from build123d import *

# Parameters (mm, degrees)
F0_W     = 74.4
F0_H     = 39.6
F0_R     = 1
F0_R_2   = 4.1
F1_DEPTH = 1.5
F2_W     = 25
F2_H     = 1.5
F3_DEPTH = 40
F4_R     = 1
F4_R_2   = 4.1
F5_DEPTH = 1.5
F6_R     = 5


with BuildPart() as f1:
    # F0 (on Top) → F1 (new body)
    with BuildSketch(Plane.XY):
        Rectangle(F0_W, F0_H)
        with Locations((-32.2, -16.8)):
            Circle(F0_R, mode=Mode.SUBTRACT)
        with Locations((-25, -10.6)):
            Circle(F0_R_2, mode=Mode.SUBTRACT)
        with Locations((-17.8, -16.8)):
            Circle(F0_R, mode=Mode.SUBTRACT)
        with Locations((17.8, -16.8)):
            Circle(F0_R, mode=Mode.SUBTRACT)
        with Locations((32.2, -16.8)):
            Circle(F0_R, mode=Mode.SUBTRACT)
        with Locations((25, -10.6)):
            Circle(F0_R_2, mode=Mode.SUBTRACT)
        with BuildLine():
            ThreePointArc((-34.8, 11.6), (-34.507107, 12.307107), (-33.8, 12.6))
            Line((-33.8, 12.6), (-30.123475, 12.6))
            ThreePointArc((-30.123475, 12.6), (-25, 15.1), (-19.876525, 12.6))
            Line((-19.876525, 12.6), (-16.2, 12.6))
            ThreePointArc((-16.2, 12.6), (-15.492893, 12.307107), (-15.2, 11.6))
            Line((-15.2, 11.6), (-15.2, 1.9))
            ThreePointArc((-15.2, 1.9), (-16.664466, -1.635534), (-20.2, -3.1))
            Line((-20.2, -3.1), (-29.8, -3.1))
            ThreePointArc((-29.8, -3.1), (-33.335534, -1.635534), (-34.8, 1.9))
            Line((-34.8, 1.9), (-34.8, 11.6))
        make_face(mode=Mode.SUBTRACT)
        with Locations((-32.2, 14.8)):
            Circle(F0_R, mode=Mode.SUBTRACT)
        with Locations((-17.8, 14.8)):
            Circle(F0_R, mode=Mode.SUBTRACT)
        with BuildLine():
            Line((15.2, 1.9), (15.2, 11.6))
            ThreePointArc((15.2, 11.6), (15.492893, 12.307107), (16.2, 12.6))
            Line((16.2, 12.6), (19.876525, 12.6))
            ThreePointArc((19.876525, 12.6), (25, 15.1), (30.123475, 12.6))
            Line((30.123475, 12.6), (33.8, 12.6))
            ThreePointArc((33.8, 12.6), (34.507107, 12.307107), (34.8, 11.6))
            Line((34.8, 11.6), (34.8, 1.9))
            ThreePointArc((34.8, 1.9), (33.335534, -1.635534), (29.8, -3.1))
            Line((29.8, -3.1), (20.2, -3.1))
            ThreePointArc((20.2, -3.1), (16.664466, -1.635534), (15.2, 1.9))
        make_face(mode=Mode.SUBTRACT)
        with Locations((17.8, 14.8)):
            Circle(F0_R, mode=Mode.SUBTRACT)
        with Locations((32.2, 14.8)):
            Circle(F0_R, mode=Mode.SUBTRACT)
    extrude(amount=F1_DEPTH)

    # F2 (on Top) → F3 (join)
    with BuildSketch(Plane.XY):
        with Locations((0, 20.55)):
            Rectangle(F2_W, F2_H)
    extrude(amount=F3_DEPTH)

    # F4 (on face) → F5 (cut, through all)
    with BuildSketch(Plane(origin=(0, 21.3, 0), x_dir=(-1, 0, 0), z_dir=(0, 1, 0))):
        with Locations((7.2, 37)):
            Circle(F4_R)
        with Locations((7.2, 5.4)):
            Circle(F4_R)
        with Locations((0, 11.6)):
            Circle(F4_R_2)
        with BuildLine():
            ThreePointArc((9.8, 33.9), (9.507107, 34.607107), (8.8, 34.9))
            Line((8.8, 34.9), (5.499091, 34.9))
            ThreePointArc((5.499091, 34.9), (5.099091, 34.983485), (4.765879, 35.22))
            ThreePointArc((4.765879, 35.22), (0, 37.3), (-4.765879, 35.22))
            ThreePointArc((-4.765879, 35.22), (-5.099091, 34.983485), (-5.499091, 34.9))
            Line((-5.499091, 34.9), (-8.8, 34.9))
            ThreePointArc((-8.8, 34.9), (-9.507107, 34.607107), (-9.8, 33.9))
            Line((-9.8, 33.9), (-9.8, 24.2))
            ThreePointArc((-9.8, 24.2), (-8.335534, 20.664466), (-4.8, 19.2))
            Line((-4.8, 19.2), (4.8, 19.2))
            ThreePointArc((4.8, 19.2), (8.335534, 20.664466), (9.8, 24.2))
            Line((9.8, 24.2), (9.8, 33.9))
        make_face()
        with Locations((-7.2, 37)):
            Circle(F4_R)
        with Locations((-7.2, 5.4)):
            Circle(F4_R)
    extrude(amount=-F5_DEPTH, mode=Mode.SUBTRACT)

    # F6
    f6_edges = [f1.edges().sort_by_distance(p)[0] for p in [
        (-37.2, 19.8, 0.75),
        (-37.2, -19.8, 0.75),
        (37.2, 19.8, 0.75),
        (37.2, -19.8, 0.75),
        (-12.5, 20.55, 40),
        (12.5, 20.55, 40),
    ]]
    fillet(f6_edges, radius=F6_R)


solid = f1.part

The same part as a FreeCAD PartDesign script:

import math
import FreeCAD as App
import Part
import Sketcher

V = App.Vector
Q = App.Units.Quantity


def edges_at(feature, points):
    """Names of the edges that pass closest to the given points."""
    edges = feature.Shape.Edges
    near = lambda p: min(range(len(edges)), key=lambda i: edges[i].distToShape(Part.Vertex(*p))[0])
    return sorted({f"Edge{near(p) + 1}" for p in points})


def add_polygon(sketch, points):
    """Adds a closed chain of lines whose ends are joined by coincident constraints."""
    first, n = sketch.GeometryCount, len(points)
    for a, b in zip(points, points[1:] + points[:1]):
        sketch.addGeometry(Part.LineSegment(App.Vector(*a, 0), App.Vector(*b, 0)), False)
    for i in range(n):
        sketch.addConstraint(Sketcher.Constraint("Coincident", first + i, 2, first + (i + 1) % n, 1))

doc = App.newDocument("Part")
body = doc.addObject("PartDesign::Body", "Body")

# Sketch on XY plane
sketch1 = body.newObject("Sketcher::SketchObject", "Sketch")
sketch1.AttachmentSupport = (doc.getObject("XY_Plane"), [""])
sketch1.MapMode = "FlatFace"
add_polygon(sketch1, [(-37.2, 19.8), (-37.2, -19.8), (37.2, -19.8), (37.2, 19.8)])  # lines 0-3
sketch1.addGeometry(Part.Circle(V(-32.2, -16.8, 0), V(0, 0, 1), 1), False)  # 4
sketch1.addGeometry(Part.Circle(V(-17.8, -16.8, 0), V(0, 0, 1), 1), False)  # 5
sketch1.addGeometry(Part.Circle(V(-25, -10.6, 0), V(0, 0, 1), 4.1), False)  # 6
sketch1.addGeometry(Part.Circle(V(17.8, -16.8, 0), V(0, 0, 1), 1), False)  # 7
sketch1.addGeometry(Part.Circle(V(32.2, -16.8, 0), V(0, 0, 1), 1), False)  # 8
sketch1.addGeometry(Part.Circle(V(25, -10.6, 0), V(0, 0, 1), 4.1), False)  # 9
sketch1.addGeometry(Part.LineSegment(V(-34.8, 1.9, 0), V(-34.8, 11.6, 0)), False)  # 10
sketch1.addGeometry(Part.ArcOfCircle(Part.Circle(V(-33.8, 11.6, 0), V(0, 0, 1), 1), math.radians(90), math.radians(180)), False)  # 11
sketch1.addGeometry(Part.LineSegment(V(-33.8, 12.6, 0), V(-30.1, 12.6, 0)), False)  # 12
sketch1.addGeometry(Part.ArcOfCircle(Part.Circle(V(-25, 8.6, 0), V(0, 0, 1), 6.5), math.radians(38), math.radians(142)), False)  # 13
sketch1.addGeometry(Part.LineSegment(V(-19.9, 12.6, 0), V(-16.2, 12.6, 0)), False)  # 14
sketch1.addGeometry(Part.ArcOfCircle(Part.Circle(V(-16.2, 11.6, 0), V(0, 0, 1), 1), math.radians(0), math.radians(90)), False)  # 15
sketch1.addGeometry(Part.LineSegment(V(-15.2, 11.6, 0), V(-15.2, 1.9, 0)), False)  # 16
sketch1.addGeometry(Part.ArcOfCircle(Part.Circle(V(-20.2, 1.9, 0), V(0, 0, 1), 5), math.radians(-90), math.radians(0)), False)  # 17
sketch1.addGeometry(Part.LineSegment(V(-20.2, -3.1, 0), V(-29.8, -3.1, 0)), False)  # 18
sketch1.addGeometry(Part.ArcOfCircle(Part.Circle(V(-29.8, 1.9, 0), V(0, 0, 1), 5), math.radians(180), math.radians(270)), False)  # 19
sketch1.addGeometry(Part.Circle(V(-32.2, 14.8, 0), V(0, 0, 1), 1), False)  # 20
sketch1.addGeometry(Part.Circle(V(-17.8, 14.8, 0), V(0, 0, 1), 1), False)  # 21
sketch1.addGeometry(Part.ArcOfCircle(Part.Circle(V(20.2, 1.9, 0), V(0, 0, 1), 5), math.radians(180), math.radians(270)), False)  # 22
sketch1.addGeometry(Part.LineSegment(V(15.2, 1.9, 0), V(15.2, 11.6, 0)), False)  # 23
sketch1.addGeometry(Part.ArcOfCircle(Part.Circle(V(16.2, 11.6, 0), V(0, 0, 1), 1), math.radians(90), math.radians(180)), False)  # 24
sketch1.addGeometry(Part.LineSegment(V(16.2, 12.6, 0), V(19.9, 12.6, 0)), False)  # 25
sketch1.addGeometry(Part.ArcOfCircle(Part.Circle(V(25, 8.6, 0), V(0, 0, 1), 6.5), math.radians(38), math.radians(142)), False)  # 26
sketch1.addGeometry(Part.LineSegment(V(30.1, 12.6, 0), V(33.8, 12.6, 0)), False)  # 27
sketch1.addGeometry(Part.ArcOfCircle(Part.Circle(V(33.8, 11.6, 0), V(0, 0, 1), 1), math.radians(0), math.radians(90)), False)  # 28
sketch1.addGeometry(Part.LineSegment(V(34.8, 11.6, 0), V(34.8, 1.9, 0)), False)  # 29
sketch1.addGeometry(Part.ArcOfCircle(Part.Circle(V(29.8, 1.9, 0), V(0, 0, 1), 5), math.radians(-90), math.radians(0)), False)  # 30
sketch1.addGeometry(Part.LineSegment(V(29.8, -3.1, 0), V(20.2, -3.1, 0)), False)  # 31
sketch1.addGeometry(Part.Circle(V(17.8, 14.8, 0), V(0, 0, 1), 1), False)  # 32
sketch1.addGeometry(Part.Circle(V(32.2, 14.8, 0), V(0, 0, 1), 1), False)  # 33
sketch1.addConstraint(Sketcher.Constraint("Tangent", 10, 2, 11, 2))
sketch1.addConstraint(Sketcher.Constraint("Tangent", 11, 1, 12, 1))
sketch1.addConstraint(Sketcher.Constraint("Coincident", 12, 2, 13, 2))
sketch1.addConstraint(Sketcher.Constraint("Coincident", 13, 1, 14, 1))
sketch1.addConstraint(Sketcher.Constraint("Tangent", 14, 2, 15, 2))
sketch1.addConstraint(Sketcher.Constraint("Tangent", 15, 1, 16, 1))
sketch1.addConstraint(Sketcher.Constraint("Tangent", 16, 2, 17, 2))
sketch1.addConstraint(Sketcher.Constraint("Tangent", 17, 1, 18, 1))
sketch1.addConstraint(Sketcher.Constraint("Tangent", 18, 2, 19, 2))
sketch1.addConstraint(Sketcher.Constraint("Tangent", 19, 1, 10, 1))
sketch1.addConstraint(Sketcher.Constraint("Tangent", 22, 1, 23, 1))
sketch1.addConstraint(Sketcher.Constraint("Tangent", 23, 2, 24, 2))
sketch1.addConstraint(Sketcher.Constraint("Tangent", 24, 1, 25, 1))
sketch1.addConstraint(Sketcher.Constraint("Coincident", 25, 2, 26, 2))
sketch1.addConstraint(Sketcher.Constraint("Coincident", 26, 1, 27, 1))
sketch1.addConstraint(Sketcher.Constraint("Tangent", 27, 2, 28, 2))
sketch1.addConstraint(Sketcher.Constraint("Tangent", 28, 1, 29, 1))
sketch1.addConstraint(Sketcher.Constraint("Tangent", 29, 2, 30, 2))
sketch1.addConstraint(Sketcher.Constraint("Tangent", 30, 1, 31, 1))
sketch1.addConstraint(Sketcher.Constraint("Tangent", 31, 2, 22, 2))
sketch1.addConstraint(Sketcher.Constraint("Vertical", 0))
sketch1.addConstraint(Sketcher.Constraint("Horizontal", 1))
sketch1.addConstraint(Sketcher.Constraint("Vertical", 2))
sketch1.addConstraint(Sketcher.Constraint("Horizontal", 3))
sketch1.addConstraint(Sketcher.Constraint("Vertical", 10))
sketch1.addConstraint(Sketcher.Constraint("Horizontal", 12))
sketch1.addConstraint(Sketcher.Constraint("Horizontal", 14))
sketch1.addConstraint(Sketcher.Constraint("Vertical", 16))
sketch1.addConstraint(Sketcher.Constraint("Horizontal", 18))
sketch1.addConstraint(Sketcher.Constraint("Vertical", 23))
sketch1.addConstraint(Sketcher.Constraint("Horizontal", 25))
sketch1.addConstraint(Sketcher.Constraint("Horizontal", 27))
sketch1.addConstraint(Sketcher.Constraint("Vertical", 29))
sketch1.addConstraint(Sketcher.Constraint("Horizontal", 31))
sketch1.addConstraint(Sketcher.Constraint("Equal", 4, 5))
sketch1.addConstraint(Sketcher.Constraint("Equal", 5, 7))
sketch1.addConstraint(Sketcher.Constraint("Equal", 7, 8))
sketch1.addConstraint(Sketcher.Constraint("Equal", 6, 9))
sketch1.addConstraint(Sketcher.Constraint("Equal", 8, 11))
sketch1.addConstraint(Sketcher.Constraint("Equal", 11, 15))
sketch1.addConstraint(Sketcher.Constraint("Equal", 17, 19))
sketch1.addConstraint(Sketcher.Constraint("Equal", 15, 20))
sketch1.addConstraint(Sketcher.Constraint("Equal", 20, 21))
sketch1.addConstraint(Sketcher.Constraint("Equal", 19, 22))
sketch1.addConstraint(Sketcher.Constraint("Equal", 21, 24))
sketch1.addConstraint(Sketcher.Constraint("Equal", 13, 26))
sketch1.addConstraint(Sketcher.Constraint("Equal", 24, 28))
sketch1.addConstraint(Sketcher.Constraint("Equal", 22, 30))
sketch1.addConstraint(Sketcher.Constraint("Equal", 28, 32))
sketch1.addConstraint(Sketcher.Constraint("Equal", 32, 33))
sketch1.addConstraint(Sketcher.Constraint("Symmetric", 0, 2, 2, 2, -1, 1))
sketch1.addConstraint(Sketcher.Constraint("Symmetric", 5, 3, 7, 3, -2))
sketch1.addConstraint(Sketcher.Constraint("Symmetric", 4, 3, 8, 3, -2))
sketch1.addConstraint(Sketcher.Constraint("Symmetric", 6, 3, 9, 3, -2))
sketch1.addConstraint(Sketcher.Constraint("Symmetric", 17, 3, 22, 3, -2))
sketch1.addConstraint(Sketcher.Constraint("Symmetric", 13, 3, 26, 3, -2))
sketch1.addConstraint(Sketcher.Constraint("Symmetric", 11, 3, 28, 3, -2))
sketch1.addConstraint(Sketcher.Constraint("Symmetric", 21, 3, 32, 3, -2))
sketch1.addConstraint(Sketcher.Constraint("Symmetric", 20, 3, 33, 3, -2))
sketch1.addConstraint(Sketcher.Constraint("Horizontal", 4, 3, 5, 3))
sketch1.addConstraint(Sketcher.Constraint("Horizontal", 11, 3, 15, 3))
sketch1.addConstraint(Sketcher.Constraint("Horizontal", 20, 3, 21, 3))
sketch1.addConstraint(Sketcher.Constraint("Horizontal", 15, 3, 24, 3))
sketch1.addConstraint(Sketcher.Constraint("Vertical", 6, 3, 13, 3))
sketch1.addConstraint(Sketcher.Constraint("Vertical", 4, 3, 20, 3))
sketch1.addConstraint(Sketcher.Constraint("Vertical", 5, 3, 21, 3))
sketch1.addConstraint(Sketcher.Constraint("Equal", 12, 14))
sketch1.addConstraint(Sketcher.Constraint("Diameter", 4, Q("2 mm")))
sketch1.addConstraint(Sketcher.Constraint("Radius", 17, Q("5 mm")))
sketch1.addConstraint(Sketcher.Constraint("Diameter", 6, Q("8.2 mm")))
sketch1.addConstraint(Sketcher.Constraint("Radius", 13, Q("6.499999 mm")))
sketch1.addConstraint(Sketcher.Constraint("DistanceX", 1, 1, 1, 2, Q("74.4 mm")))
sketch1.addConstraint(Sketcher.Constraint("DistanceX", 18, 2, 18, 1, Q("9.6 mm")))
sketch1.addConstraint(Sketcher.Constraint("DistanceY", 0, 2, 0, 1, Q("39.6 mm")))
sketch1.addConstraint(Sketcher.Constraint("DistanceY", 10, 1, 10, 2, Q("9.7 mm")))
sketch1.addConstraint(Sketcher.Constraint("DistanceX", 6, 3, -1, 1, Q("25 mm")))
sketch1.addConstraint(Sketcher.Constraint("DistanceX", 4, 3, 7, 3, Q("50 mm")))
sketch1.addConstraint(Sketcher.Constraint("DistanceX", 11, 3, 5, 3, Q("16.000001 mm")))
sketch1.addConstraint(Sketcher.Constraint("DistanceY", 13, 3, 11, 3, Q("3 mm")))
sketch1.addConstraint(Sketcher.Constraint("DistanceY", 0, 2, 4, 3, Q("3 mm")))
sketch1.addConstraint(Sketcher.Constraint("DistanceY", 33, 3, 2, 2, Q("5 mm")))
sketch1.addConstraint(Sketcher.Constraint("DistanceY", 6, 3, -1, 1, Q("10.6 mm")))
sketch1.addConstraint(Sketcher.Constraint("DistanceY", -1, 1, 11, 3, Q("11.600001 mm")))
pad1 = body.newObject("PartDesign::Pad", "Pad")
pad1.Profile = sketch1
pad1.Length = 1.5

# Sketch on XY plane
sketch2 = body.newObject("Sketcher::SketchObject", "Sketch001")
sketch2.AttachmentSupport = (doc.getObject("XY_Plane"), [""])
sketch2.MapMode = "FlatFace"
add_polygon(sketch2, [(-12.5, 21.3), (-12.5, 19.8), (12.5, 19.8), (12.5, 21.3)])  # lines 0-3
sketch2.addConstraint(Sketcher.Constraint("Vertical", 0))
sketch2.addConstraint(Sketcher.Constraint("Horizontal", 1))
sketch2.addConstraint(Sketcher.Constraint("Vertical", 2))
sketch2.addConstraint(Sketcher.Constraint("Horizontal", 3))
sketch2.addConstraint(Sketcher.Constraint("DistanceX", 1, 1, 1, 2, Q("25 mm")))
sketch2.addConstraint(Sketcher.Constraint("DistanceY", 0, 2, 0, 1, Q("1.5 mm")))
sketch2.addConstraint(Sketcher.Constraint("DistanceX", 0, 2, -1, 1, Q("12.5 mm")))
sketch2.addConstraint(Sketcher.Constraint("DistanceY", -1, 1, 0, 2, Q("19.8 mm")))
pad2 = body.newObject("PartDesign::Pad", "Pad001")
pad2.Profile = sketch2
pad2.Length = 40

# Sketch on XZ plane
sketch3 = body.newObject("Sketcher::SketchObject", "Sketch002")
sketch3.AttachmentSupport = (doc.getObject("XZ_Plane"), [""])
sketch3.MapMode = "FlatFace"
sketch3.AttachmentOffset = App.Placement(V(0, 0, -21.3), App.Rotation())
sketch3.addGeometry(Part.Circle(V(-7.2, 37, 0), V(0, 0, 1), 1), False)
sketch3.addGeometry(Part.Circle(V(-7.2, 5.4, 0), V(0, 0, 1), 1), False)
sketch3.addGeometry(Part.Circle(V(0, 11.6, 0), V(0, 0, 1), 4.1), False)
sketch3.addGeometry(Part.ArcOfCircle(Part.Circle(V(-8.8, 33.9, 0), V(0, 0, 1), 1), math.radians(90), math.radians(180)), False)
sketch3.addGeometry(Part.LineSegment(V(-8.8, 34.9, 0), V(-5.5, 34.9, 0)), False)
sketch3.addGeometry(Part.ArcOfCircle(Part.Circle(V(-5.5, 35.9, 0), V(0, 0, 1), 1), math.radians(-90), math.radians(-43)), False)
sketch3.addGeometry(Part.ArcOfCircle(Part.Circle(V(0, 30.8, 0), V(0, 0, 1), 6.5), math.radians(43), math.radians(137)), False)
sketch3.addGeometry(Part.ArcOfCircle(Part.Circle(V(5.5, 35.9, 0), V(0, 0, 1), 1), math.radians(-137), math.radians(-90)), False)
sketch3.addGeometry(Part.LineSegment(V(5.5, 34.9, 0), V(8.8, 34.9, 0)), False)
sketch3.addGeometry(Part.ArcOfCircle(Part.Circle(V(8.8, 33.9, 0), V(0, 0, 1), 1), math.radians(0), math.radians(90)), False)
sketch3.addGeometry(Part.LineSegment(V(9.8, 33.9, 0), V(9.8, 24.2, 0)), False)
sketch3.addGeometry(Part.ArcOfCircle(Part.Circle(V(4.8, 24.2, 0), V(0, 0, 1), 5), math.radians(-90), math.radians(0)), False)
sketch3.addGeometry(Part.LineSegment(V(4.8, 19.2, 0), V(-4.8, 19.2, 0)), False)
sketch3.addGeometry(Part.ArcOfCircle(Part.Circle(V(-4.8, 24.2, 0), V(0, 0, 1), 5), math.radians(180), math.radians(270)), False)
sketch3.addGeometry(Part.LineSegment(V(-9.8, 24.2, 0), V(-9.8, 33.9, 0)), False)
sketch3.addGeometry(Part.Circle(V(7.2, 37, 0), V(0, 0, 1), 1), False)
sketch3.addGeometry(Part.Circle(V(7.2, 5.4, 0), V(0, 0, 1), 1), False)
sketch3.addConstraint(Sketcher.Constraint("Tangent", 3, 1, 4, 1))
sketch3.addConstraint(Sketcher.Constraint("Tangent", 4, 2, 5, 1))
sketch3.addConstraint(Sketcher.Constraint("Tangent", 5, 2, 6, 2))
sketch3.addConstraint(Sketcher.Constraint("Tangent", 6, 1, 7, 1))
sketch3.addConstraint(Sketcher.Constraint("Tangent", 7, 2, 8, 1))
sketch3.addConstraint(Sketcher.Constraint("Tangent", 8, 2, 9, 2))
sketch3.addConstraint(Sketcher.Constraint("Tangent", 9, 1, 10, 1))
sketch3.addConstraint(Sketcher.Constraint("Tangent", 10, 2, 11, 2))
sketch3.addConstraint(Sketcher.Constraint("Tangent", 11, 1, 12, 1))
sketch3.addConstraint(Sketcher.Constraint("Tangent", 12, 2, 13, 2))
sketch3.addConstraint(Sketcher.Constraint("Tangent", 13, 1, 14, 1))
sketch3.addConstraint(Sketcher.Constraint("Tangent", 14, 2, 3, 2))
sketch3.addConstraint(Sketcher.Constraint("Horizontal", 4))
sketch3.addConstraint(Sketcher.Constraint("Horizontal", 8))
sketch3.addConstraint(Sketcher.Constraint("Vertical", 10))
sketch3.addConstraint(Sketcher.Constraint("Horizontal", 12))
sketch3.addConstraint(Sketcher.Constraint("Vertical", 14))
sketch3.addConstraint(Sketcher.Constraint("Equal", 0, 1))
sketch3.addConstraint(Sketcher.Constraint("Equal", 1, 3))
sketch3.addConstraint(Sketcher.Constraint("Equal", 3, 5))
sketch3.addConstraint(Sketcher.Constraint("Equal", 5, 7))
sketch3.addConstraint(Sketcher.Constraint("Equal", 7, 9))
sketch3.addConstraint(Sketcher.Constraint("Equal", 11, 13))
sketch3.addConstraint(Sketcher.Constraint("Equal", 9, 15))
sketch3.addConstraint(Sketcher.Constraint("Equal", 15, 16))
sketch3.addConstraint(Sketcher.Constraint("Symmetric", 5, 3, 7, 3, -2))
sketch3.addConstraint(Sketcher.Constraint("Symmetric", 0, 3, 15, 3, -2))
sketch3.addConstraint(Sketcher.Constraint("Symmetric", 1, 3, 16, 3, -2))
sketch3.addConstraint(Sketcher.Constraint("PointOnObject", 2, 3, -2))
sketch3.addConstraint(Sketcher.Constraint("Vertical", 0, 3, 1, 3))
sketch3.addConstraint(Sketcher.Constraint("Equal", 4, 8))
sketch3.addConstraint(Sketcher.Constraint("Diameter", 0, Q("2 mm")))
sketch3.addConstraint(Sketcher.Constraint("Radius", 11, Q("5 mm")))
sketch3.addConstraint(Sketcher.Constraint("Diameter", 2, Q("8.2 mm")))
sketch3.addConstraint(Sketcher.Constraint("Radius", 6, Q("6.500001 mm")))
sketch3.addConstraint(Sketcher.Constraint("DistanceX", 12, 2, 12, 1, Q("9.6 mm")))
sketch3.addConstraint(Sketcher.Constraint("DistanceY", 10, 2, 10, 1, Q("9.7 mm")))
sketch3.addConstraint(Sketcher.Constraint("DistanceY", -1, 1, 0, 3, Q("37 mm")))
sketch3.addConstraint(Sketcher.Constraint("DistanceX", 0, 3, 9, 3, Q("16.000001 mm")))
sketch3.addConstraint(Sketcher.Constraint("DistanceY", -1, 1, 1, 3, Q("5.4 mm")))
sketch3.addConstraint(Sketcher.Constraint("DistanceY", -1, 1, 2, 3, Q("11.6 mm")))
sketch3.addConstraint(Sketcher.Constraint("DistanceY", -1, 1, 3, 3, Q("33.900001 mm")))
sketch3.addConstraint(Sketcher.Constraint("DistanceY", -1, 1, 6, 3, Q("30.799999 mm")))
pocket1 = body.newObject("PartDesign::Pocket", "Pocket")
pocket1.Profile = sketch3
pocket1.Type = "ThroughAll"
pocket1.Reversed = True
doc.recompute()

fillet = body.newObject("PartDesign::Fillet", "Fillet")
fillet.Base = (pocket1, edges_at(pocket1, [
    (-37.2, 19.8, 0.75),
    (-37.2, -19.8, 0.75),
    (37.2, 19.8, 0.75),
    (37.2, -19.8, 0.75),
    (-12.5, 20.55, 40),
    (12.5, 20.55, 40),
]))
fillet.Radius = 5

doc.recompute()
